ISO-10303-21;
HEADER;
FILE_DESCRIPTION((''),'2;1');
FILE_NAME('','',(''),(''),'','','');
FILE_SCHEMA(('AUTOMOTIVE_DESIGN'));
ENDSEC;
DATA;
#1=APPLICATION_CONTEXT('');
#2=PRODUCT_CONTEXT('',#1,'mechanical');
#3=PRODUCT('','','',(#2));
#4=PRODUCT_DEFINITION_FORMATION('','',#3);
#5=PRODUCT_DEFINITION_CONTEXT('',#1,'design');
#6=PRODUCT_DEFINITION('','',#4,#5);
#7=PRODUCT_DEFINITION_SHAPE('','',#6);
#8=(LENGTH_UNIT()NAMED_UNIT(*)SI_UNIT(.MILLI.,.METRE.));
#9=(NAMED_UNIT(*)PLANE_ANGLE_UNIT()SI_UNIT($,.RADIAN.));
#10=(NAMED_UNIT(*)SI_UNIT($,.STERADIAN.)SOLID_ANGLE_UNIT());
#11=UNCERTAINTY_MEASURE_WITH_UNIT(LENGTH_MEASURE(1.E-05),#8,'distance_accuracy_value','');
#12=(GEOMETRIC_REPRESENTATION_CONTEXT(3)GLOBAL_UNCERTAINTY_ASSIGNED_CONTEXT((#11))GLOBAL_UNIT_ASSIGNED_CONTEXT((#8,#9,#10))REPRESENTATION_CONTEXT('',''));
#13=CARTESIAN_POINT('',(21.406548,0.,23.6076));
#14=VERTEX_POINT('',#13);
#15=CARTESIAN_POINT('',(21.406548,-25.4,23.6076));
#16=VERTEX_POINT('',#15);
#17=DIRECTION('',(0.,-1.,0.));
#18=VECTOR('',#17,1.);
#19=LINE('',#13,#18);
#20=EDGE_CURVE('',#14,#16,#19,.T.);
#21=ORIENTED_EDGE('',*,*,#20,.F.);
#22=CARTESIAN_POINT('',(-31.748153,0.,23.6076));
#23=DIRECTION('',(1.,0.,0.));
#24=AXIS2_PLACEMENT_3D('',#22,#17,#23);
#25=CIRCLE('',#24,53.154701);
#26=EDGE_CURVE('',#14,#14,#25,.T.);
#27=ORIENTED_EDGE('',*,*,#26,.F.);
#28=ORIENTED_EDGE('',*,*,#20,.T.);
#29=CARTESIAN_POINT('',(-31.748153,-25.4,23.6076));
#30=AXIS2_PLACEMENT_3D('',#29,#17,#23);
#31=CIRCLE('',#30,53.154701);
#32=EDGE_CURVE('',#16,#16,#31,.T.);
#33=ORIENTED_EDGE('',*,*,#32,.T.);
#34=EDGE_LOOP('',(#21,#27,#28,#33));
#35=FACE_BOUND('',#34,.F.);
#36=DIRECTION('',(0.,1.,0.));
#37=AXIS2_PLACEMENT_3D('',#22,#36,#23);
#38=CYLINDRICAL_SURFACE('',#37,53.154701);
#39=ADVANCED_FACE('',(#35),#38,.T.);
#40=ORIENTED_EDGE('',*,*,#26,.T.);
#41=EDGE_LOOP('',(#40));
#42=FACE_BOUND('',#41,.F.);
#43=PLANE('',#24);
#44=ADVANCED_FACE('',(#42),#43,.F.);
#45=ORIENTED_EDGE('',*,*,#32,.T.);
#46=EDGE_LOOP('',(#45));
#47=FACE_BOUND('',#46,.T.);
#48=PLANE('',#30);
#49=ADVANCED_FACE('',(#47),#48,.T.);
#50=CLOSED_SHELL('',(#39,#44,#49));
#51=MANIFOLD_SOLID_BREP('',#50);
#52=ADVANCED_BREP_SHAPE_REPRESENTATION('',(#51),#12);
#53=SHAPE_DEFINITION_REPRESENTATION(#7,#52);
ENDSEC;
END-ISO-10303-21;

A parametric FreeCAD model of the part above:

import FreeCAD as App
import Part
import Sketcher
Q = App.Units.Quantity

doc = App.newDocument("Part")
params = doc.addObject("Spreadsheet::Sheet", "Params")
for row, (alias, value) in enumerate([
    ("pad1_length", "1 in"),
], start=1):
    params.set(f"A{row}", alias)
    params.set(f"B{row}", "=" + value)
    params.setAlias(f"B{row}", alias)

body = doc.addObject("PartDesign::Body", "Body")

# Sketch on XZ plane
sketch1 = doc.addObject("Sketcher::SketchObject", "Sketch")
body.addObject(sketch1)
sketch1.AttachmentSupport = (doc.XZ_Plane, [""])
sketch1.MapMode = "FlatFace"
sketch1.addGeometry(Part.Circle(App.Vector(-32, 24, 0), App.Vector(0, 0, 1), 53), False)
sketch1.addConstraint(Sketcher.Constraint("Diameter", 0, Q("106.309402 mm")))
sketch1.addConstraint(Sketcher.Constraint("DistanceY", -1, 1, 0, 3, Q("23.6076 mm")))
sketch1.addConstraint(Sketcher.Constraint("DistanceX", 0, 3, -1, 1, Q("31.748153 mm")))
pad1 = doc.addObject("PartDesign::Pad", "Pad")
body.addObject(pad1)
pad1.Profile = sketch1
pad1.setExpression("Length", "Params.pad1_length")

doc.recompute()
